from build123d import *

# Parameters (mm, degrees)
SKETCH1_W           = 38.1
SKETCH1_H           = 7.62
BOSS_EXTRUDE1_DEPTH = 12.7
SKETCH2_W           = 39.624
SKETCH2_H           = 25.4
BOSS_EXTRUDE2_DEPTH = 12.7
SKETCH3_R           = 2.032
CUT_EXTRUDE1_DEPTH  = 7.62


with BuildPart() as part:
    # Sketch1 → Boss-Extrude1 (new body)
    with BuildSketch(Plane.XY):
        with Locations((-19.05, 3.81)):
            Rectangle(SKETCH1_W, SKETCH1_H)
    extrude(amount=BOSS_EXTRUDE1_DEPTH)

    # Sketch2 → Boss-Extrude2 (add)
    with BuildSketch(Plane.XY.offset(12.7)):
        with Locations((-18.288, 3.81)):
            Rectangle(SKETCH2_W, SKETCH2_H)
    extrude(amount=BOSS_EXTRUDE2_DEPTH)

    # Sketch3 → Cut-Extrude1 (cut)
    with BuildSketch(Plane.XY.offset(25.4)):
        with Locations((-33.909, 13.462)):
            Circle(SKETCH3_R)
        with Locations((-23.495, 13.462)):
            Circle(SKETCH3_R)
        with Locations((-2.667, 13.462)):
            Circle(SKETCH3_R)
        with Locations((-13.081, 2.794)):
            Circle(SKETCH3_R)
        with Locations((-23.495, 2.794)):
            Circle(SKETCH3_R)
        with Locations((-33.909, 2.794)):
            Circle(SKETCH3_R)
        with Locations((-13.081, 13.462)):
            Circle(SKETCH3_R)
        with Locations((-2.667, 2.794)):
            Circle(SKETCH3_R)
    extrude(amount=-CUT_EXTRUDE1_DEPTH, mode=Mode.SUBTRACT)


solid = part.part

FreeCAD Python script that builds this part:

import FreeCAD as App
import Part
import Sketcher
from FreeCAD import Vector
Q = App.Units.Quantity

doc = App.newDocument("Part")
body = doc.addObject("PartDesign::Body", "Body")

sketch1 = body.newObject("Sketcher::SketchObject", "Sketch")
sketch1.AttachmentSupport = (doc.getObject("XY_Plane"), [""])
sketch1.MapMode = "FlatFace"
sketch1.addGeometry([
    Part.LineSegment(Vector(-38, 8, 0), Vector(-38, 0, 0)),
    Part.LineSegment(Vector(-38, 0, 0), Vector(0, 0, 0)),
    Part.LineSegment(Vector(0, 0, 0), Vector(0, 8, 0)),
    Part.LineSegment(Vector(0, 8, 0), Vector(-38, 8, 0)),
], False)
sketch1.addConstraint([
    Sketcher.Constraint("Coincident", 0, 2, 1, 1),
    Sketcher.Constraint("Coincident", 1, 2, 2, 1),
    Sketcher.Constraint("Coincident", 2, 2, 3, 1),
    Sketcher.Constraint("Coincident", 3, 2, 0, 1),
    Sketcher.Constraint("Vertical", 0),
    Sketcher.Constraint("Horizontal", 1),
    Sketcher.Constraint("Vertical", 2),
    Sketcher.Constraint("Horizontal", 3),
    Sketcher.Constraint("Coincident", 1, 2, -1, 1),
    Sketcher.Constraint("DistanceX", 1, 1, 1, 2, Q("1.5 in")),
    Sketcher.Constraint("DistanceY", 0, 2, 0, 1, Q("0.3 in")),
])
pad1 = body.newObject("PartDesign::Pad", "Pad")
pad1.Profile = sketch1
pad1.Length = Q("0.5 in")

sketch2 = body.newObject("Sketcher::SketchObject", "Sketch001")
sketch2.AttachmentSupport = (doc.getObject("XY_Plane"), [""])
sketch2.MapMode = "FlatFace"
sketch2.AttachmentOffset = App.Placement(Vector(0, 0, 0.5 * 25.4), App.Rotation())
sketch2.addGeometry([
    Part.LineSegment(Vector(-38, 17, 0), Vector(-38, -9, 0)),
    Part.LineSegment(Vector(-38, -9, 0), Vector(2, -9, 0)),
    Part.LineSegment(Vector(2, -9, 0), Vector(2, 17, 0)),
    Part.LineSegment(Vector(2, 17, 0), Vector(-38, 17, 0)),
], False)
sketch2.addConstraint([
    Sketcher.Constraint("Coincident", 0, 2, 1, 1),
    Sketcher.Constraint("Coincident", 1, 2, 2, 1),
    Sketcher.Constraint("Coincident", 2, 2, 3, 1),
    Sketcher.Constraint("Coincident", 3, 2, 0, 1),
    Sketcher.Constraint("Vertical", 0),
    Sketcher.Constraint("Horizontal", 1),
    Sketcher.Constraint("Vertical", 2),
    Sketcher.Constraint("Horizontal", 3),
    Sketcher.Constraint("DistanceY", 0, 2, 0, 1, Q("1 in")),
    Sketcher.Constraint("DistanceX", 1, 1, 1, 2, Q("1.56 in")),
    Sketcher.Constraint("DistanceX", 0, 2, -1, 1, Q("1.5 in")),
    Sketcher.Constraint("DistanceY", 0, 2, -1, 1, Q("0.35 in")),
])
pad2 = body.newObject("PartDesign::Pad", "Pad001")
pad2.Profile = sketch2
pad2.Length = Q("0.5 in")

sketch3 = body.newObject("Sketcher::SketchObject", "Sketch002")
sketch3.AttachmentSupport = (doc.getObject("XY_Plane"), [""])
sketch3.MapMode = "FlatFace"
sketch3.AttachmentOffset = App.Placement(Vector(0, 0, 1 * 25.4), App.Rotation())
sketch3.addGeometry([
    Part.Circle(Vector(-33.9, 13.5, 0), Vector(0, 0, 1), 2),
    Part.Circle(Vector(-23.5, 13.5, 0), Vector(0, 0, 1), 2),
    Part.Circle(Vector(-2.7, 13.5, 0), Vector(0, 0, 1), 2),
    Part.Circle(Vector(-13.1, 2.8, 0), Vector(0, 0, 1), 2),
    Part.Circle(Vector(-23.5, 2.8, 0), Vector(0, 0, 1), 2),
    Part.Circle(Vector(-33.9, 2.8, 0), Vector(0, 0, 1), 2),
    Part.Circle(Vector(-13.1, 13.5, 0), Vector(0, 0, 1), 2),
    Part.Circle(Vector(-2.7, 2.8, 0), Vector(0, 0, 1), 2),
], False)
sketch3.addConstraint([
    Sketcher.Constraint("Equal", 0, 1),
    Sketcher.Constraint("Equal", 1, 2),
    Sketcher.Constraint("Equal", 2, 3),
    Sketcher.Constraint("Equal", 3, 4),
    Sketcher.Constraint("Equal", 4, 5),
    Sketcher.Constraint("Equal", 5, 6),
    Sketcher.Constraint("Equal", 6, 7),
    Sketcher.Constraint("Horizontal", 0, 3, 1, 3),
    Sketcher.Constraint("Horizontal", 1, 3, 2, 3),
    Sketcher.Constraint("Horizontal", 3, 3, 4, 3),
    Sketcher.Constraint("Horizontal", 4, 3, 5, 3),
    Sketcher.Constraint("Horizontal", 2, 3, 6, 3),
    Sketcher.Constraint("Horizontal", 5, 3, 7, 3),
    Sketcher.Constraint("Vertical", 1, 3, 4, 3),
    Sketcher.Constraint("Vertical", 0, 3, 5, 3),
    Sketcher.Constraint("Vertical", 3, 3, 6, 3),
    Sketcher.Constraint("Vertical", 2, 3, 7, 3),
    Sketcher.Constraint("Diameter", 0, Q("0.16 in")),
    Sketcher.Constraint("DistanceY", -1, 1, 0, 3, Q("0.53 in")),
    Sketcher.Constraint("DistanceY", -1, 1, 3, 3, Q("0.11 in")),
    Sketcher.Constraint("DistanceX", 0, 3, 1, 3, Q("0.41 in")),
    Sketcher.Constraint("DistanceX", 1, 3, 2, 3, Q("0.82 in")),
    Sketcher.Constraint("DistanceX", 3, 3, 2, 3, Q("0.41 in")),
    Sketcher.Constraint("DistanceX", 0, 3, -1, 1, Q("1.335 in")),
])
pocket1 = body.newObject("PartDesign::Pocket", "Pocket")
pocket1.Profile = sketch3
pocket1.Length = Q("0.3 in")

doc.recompute()
